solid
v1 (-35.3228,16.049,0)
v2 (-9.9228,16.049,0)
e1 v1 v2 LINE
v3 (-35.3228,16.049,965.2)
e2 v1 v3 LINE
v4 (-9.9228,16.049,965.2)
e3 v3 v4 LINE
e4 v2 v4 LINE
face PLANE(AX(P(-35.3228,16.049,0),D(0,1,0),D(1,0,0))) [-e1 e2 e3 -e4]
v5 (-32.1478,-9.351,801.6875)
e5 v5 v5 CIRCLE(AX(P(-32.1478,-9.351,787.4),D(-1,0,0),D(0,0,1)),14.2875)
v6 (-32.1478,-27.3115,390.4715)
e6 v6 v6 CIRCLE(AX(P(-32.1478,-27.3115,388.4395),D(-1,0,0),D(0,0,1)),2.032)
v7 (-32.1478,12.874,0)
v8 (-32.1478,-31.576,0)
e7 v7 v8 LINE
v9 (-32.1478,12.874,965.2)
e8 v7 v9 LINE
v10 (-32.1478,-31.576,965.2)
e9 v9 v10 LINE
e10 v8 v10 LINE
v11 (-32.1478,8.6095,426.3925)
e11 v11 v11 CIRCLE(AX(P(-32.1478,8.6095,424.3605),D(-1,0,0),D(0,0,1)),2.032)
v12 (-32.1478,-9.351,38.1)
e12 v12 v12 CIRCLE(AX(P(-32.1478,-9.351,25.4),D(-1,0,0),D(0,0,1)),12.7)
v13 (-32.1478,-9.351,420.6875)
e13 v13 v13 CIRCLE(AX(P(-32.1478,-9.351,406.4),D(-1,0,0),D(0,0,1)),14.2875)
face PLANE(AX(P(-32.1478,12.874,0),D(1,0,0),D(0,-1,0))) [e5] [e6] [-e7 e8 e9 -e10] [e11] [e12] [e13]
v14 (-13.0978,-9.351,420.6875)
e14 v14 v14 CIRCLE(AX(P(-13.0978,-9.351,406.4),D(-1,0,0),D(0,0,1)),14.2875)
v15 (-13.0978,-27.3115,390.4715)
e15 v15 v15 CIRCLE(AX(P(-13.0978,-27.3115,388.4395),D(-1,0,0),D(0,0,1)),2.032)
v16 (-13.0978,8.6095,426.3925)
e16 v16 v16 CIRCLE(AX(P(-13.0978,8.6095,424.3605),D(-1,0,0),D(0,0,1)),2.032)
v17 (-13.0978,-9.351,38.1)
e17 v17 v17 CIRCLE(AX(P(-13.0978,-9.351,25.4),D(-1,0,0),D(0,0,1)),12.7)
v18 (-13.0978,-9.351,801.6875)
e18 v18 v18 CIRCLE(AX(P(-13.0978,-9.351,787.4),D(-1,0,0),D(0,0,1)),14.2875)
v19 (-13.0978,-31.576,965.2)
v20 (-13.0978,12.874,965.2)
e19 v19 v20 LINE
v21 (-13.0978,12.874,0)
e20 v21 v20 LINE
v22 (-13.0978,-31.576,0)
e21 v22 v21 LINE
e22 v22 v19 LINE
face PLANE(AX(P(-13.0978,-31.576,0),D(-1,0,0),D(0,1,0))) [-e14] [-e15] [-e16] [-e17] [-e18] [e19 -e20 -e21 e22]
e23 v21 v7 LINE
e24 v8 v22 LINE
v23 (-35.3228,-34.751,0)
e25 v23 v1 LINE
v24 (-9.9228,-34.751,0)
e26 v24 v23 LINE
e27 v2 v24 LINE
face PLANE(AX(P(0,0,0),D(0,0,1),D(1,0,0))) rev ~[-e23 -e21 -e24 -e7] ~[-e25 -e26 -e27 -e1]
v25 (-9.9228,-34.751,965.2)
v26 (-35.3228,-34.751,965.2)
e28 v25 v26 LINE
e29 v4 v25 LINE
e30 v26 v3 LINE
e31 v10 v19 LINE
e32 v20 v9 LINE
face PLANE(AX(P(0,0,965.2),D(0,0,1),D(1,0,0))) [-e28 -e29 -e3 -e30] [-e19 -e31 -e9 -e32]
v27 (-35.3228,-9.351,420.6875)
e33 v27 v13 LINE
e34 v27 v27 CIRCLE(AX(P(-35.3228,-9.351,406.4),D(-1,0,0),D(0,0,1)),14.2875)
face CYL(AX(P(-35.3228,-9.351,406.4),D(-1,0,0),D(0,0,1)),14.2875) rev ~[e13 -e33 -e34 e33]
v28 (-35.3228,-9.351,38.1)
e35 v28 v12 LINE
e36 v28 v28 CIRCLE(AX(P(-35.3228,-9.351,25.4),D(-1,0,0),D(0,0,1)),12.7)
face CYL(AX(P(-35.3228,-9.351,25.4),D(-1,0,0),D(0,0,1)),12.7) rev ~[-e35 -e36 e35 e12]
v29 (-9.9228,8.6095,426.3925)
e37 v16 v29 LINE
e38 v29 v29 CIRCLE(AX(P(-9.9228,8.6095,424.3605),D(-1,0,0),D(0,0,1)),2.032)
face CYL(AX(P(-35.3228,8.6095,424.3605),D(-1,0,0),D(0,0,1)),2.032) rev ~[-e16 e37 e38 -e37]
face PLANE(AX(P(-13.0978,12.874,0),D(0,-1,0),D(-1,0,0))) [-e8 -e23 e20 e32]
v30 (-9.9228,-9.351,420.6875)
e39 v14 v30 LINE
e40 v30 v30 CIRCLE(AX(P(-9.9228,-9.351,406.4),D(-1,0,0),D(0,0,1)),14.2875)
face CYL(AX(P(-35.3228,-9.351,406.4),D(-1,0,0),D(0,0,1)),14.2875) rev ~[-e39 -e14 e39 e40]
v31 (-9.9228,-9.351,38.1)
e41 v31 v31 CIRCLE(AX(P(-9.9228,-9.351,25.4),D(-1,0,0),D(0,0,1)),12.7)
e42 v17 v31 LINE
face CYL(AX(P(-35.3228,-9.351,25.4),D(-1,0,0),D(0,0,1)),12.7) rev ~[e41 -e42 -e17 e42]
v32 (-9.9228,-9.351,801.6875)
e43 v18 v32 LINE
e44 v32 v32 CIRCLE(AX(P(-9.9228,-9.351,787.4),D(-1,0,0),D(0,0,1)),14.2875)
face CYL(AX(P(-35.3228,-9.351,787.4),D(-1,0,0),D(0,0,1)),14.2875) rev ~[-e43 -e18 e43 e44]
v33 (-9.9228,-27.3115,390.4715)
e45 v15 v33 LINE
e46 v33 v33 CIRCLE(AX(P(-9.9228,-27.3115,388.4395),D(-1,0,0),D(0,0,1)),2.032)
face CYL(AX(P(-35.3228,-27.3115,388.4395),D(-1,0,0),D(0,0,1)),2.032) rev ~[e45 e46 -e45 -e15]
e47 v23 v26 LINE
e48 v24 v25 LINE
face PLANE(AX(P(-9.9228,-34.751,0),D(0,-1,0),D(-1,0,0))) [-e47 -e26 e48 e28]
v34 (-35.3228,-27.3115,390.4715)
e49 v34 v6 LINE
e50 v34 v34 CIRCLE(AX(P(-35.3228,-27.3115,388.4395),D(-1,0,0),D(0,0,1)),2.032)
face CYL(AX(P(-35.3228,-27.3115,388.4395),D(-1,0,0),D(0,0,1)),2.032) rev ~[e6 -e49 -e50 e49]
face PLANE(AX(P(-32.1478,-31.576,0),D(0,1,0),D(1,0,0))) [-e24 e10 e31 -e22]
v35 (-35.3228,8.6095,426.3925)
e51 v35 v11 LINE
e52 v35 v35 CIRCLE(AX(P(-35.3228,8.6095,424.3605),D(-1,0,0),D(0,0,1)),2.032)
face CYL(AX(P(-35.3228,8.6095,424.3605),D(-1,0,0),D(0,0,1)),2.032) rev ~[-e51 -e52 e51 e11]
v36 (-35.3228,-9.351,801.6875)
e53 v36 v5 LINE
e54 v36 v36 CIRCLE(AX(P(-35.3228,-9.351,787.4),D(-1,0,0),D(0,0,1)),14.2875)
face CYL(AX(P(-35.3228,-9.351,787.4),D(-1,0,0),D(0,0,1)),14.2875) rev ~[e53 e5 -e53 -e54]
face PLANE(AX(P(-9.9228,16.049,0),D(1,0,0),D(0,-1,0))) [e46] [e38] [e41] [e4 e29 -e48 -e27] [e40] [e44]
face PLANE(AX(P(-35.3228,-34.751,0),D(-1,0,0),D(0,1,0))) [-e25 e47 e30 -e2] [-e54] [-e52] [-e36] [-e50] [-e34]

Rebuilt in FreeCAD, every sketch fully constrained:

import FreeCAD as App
import Part
import Sketcher
Q = App.Units.Quantity

doc = App.newDocument("Part")
body = doc.addObject("PartDesign::Body", "Body")

# Sketch on XY plane
sketch1 = body.newObject("Sketcher::SketchObject", "Sketch")
sketch1.AttachmentSupport = (doc.getObject("XY_Plane"), [""])
sketch1.MapMode = "FlatFace"
sketch1.addGeometry(Part.LineSegment(App.Vector(-10, 16, 0), App.Vector(-35, 16, 0)), False)
sketch1.addGeometry(Part.LineSegment(App.Vector(-35, 16, 0), App.Vector(-35, -35, 0)), False)
sketch1.addGeometry(Part.LineSegment(App.Vector(-35, -35, 0), App.Vector(-10, -35, 0)), False)
sketch1.addGeometry(Part.LineSegment(App.Vector(-10, -35, 0), App.Vector(-10, 16, 0)), False)
sketch1.addGeometry(Part.LineSegment(App.Vector(-32, 13, 0), App.Vector(-13, 13, 0)), False)
sketch1.addGeometry(Part.LineSegment(App.Vector(-13, 13, 0), App.Vector(-13, -32, 0)), False)
sketch1.addGeometry(Part.LineSegment(App.Vector(-13, -32, 0), App.Vector(-32, -32, 0)), False)
sketch1.addGeometry(Part.LineSegment(App.Vector(-32, -32, 0), App.Vector(-32, 13, 0)), False)
sketch1.addConstraint(Sketcher.Constraint("Coincident", 0, 2, 1, 1))
sketch1.addConstraint(Sketcher.Constraint("Coincident", 1, 2, 2, 1))
sketch1.addConstraint(Sketcher.Constraint("Coincident", 2, 2, 3, 1))
sketch1.addConstraint(Sketcher.Constraint("Coincident", 3, 2, 0, 1))
sketch1.addConstraint(Sketcher.Constraint("Coincident", 4, 2, 5, 1))
sketch1.addConstraint(Sketcher.Constraint("Coincident", 5, 2, 6, 1))
sketch1.addConstraint(Sketcher.Constraint("Coincident", 6, 2, 7, 1))
sketch1.addConstraint(Sketcher.Constraint("Coincident", 7, 2, 4, 1))
sketch1.addConstraint(Sketcher.Constraint("Horizontal", 0))
sketch1.addConstraint(Sketcher.Constraint("Vertical", 1))
sketch1.addConstraint(Sketcher.Constraint("Horizontal", 2))
sketch1.addConstraint(Sketcher.Constraint("Vertical", 3))
sketch1.addConstraint(Sketcher.Constraint("Horizontal", 4))
sketch1.addConstraint(Sketcher.Constraint("Vertical", 5))
sketch1.addConstraint(Sketcher.Constraint("Horizontal", 6))
sketch1.addConstraint(Sketcher.Constraint("Vertical", 7))
sketch1.addConstraint(Sketcher.Constraint("DistanceX", 0, 2, 0, 1, Q("1 in")))
sketch1.addConstraint(Sketcher.Constraint("DistanceY", 1, 2, 1, 1, Q("2 in")))
sketch1.addConstraint(Sketcher.Constraint("DistanceX", 4, 2, 3, 2, Q("0.125 in")))
sketch1.addConstraint(Sketcher.Constraint("DistanceY", 4, 2, 3, 2, Q("0.125 in")))
sketch1.addConstraint(Sketcher.Constraint("DistanceY", 2, 2, 5, 2, Q("0.125 in")))
sketch1.addConstraint(Sketcher.Constraint("DistanceX", 1, 2, 6, 2, Q("0.125 in")))
sketch1.addConstraint(Sketcher.Constraint("DistanceX", 0, 2, -1, 1, 35.3228))
sketch1.addConstraint(Sketcher.Constraint("DistanceY", -1, 1, 0, 2, 16.049))
pad1 = body.newObject("PartDesign::Pad", "Pad")
pad1.Profile = sketch1
pad1.Length = Q("38 in")

# Sketch on YZ plane
sketch2 = body.newObject("Sketcher::SketchObject", "Sketch001")
sketch2.AttachmentSupport = (doc.getObject("YZ_Plane"), [""])
sketch2.MapMode = "FlatFace"
sketch2.AttachmentOffset = App.Placement(App.Vector(0, 0, -35.3228), App.Rotation())
sketch2.addGeometry(Part.Circle(App.Vector(-9, 25, 0), App.Vector(0, 0, 1), 13), False)
sketch2.addConstraint(Sketcher.Constraint("Diameter", 0, Q("1 in")))
sketch2.addConstraint(Sketcher.Constraint("DistanceY", -1, 1, 0, 3, Q("1 in")))
sketch2.addConstraint(Sketcher.Constraint("DistanceX", 0, 3, -1, 1, 9.351))
pocket1 = body.newObject("PartDesign::Pocket", "Pocket")
pocket1.Profile = sketch2
pocket1.Length = Q("10 in")
pocket1.Reversed = True

# Sketch on YZ plane
sketch3 = body.newObject("Sketcher::SketchObject", "Sketch002")
sketch3.AttachmentSupport = (doc.getObject("YZ_Plane"), [""])
sketch3.MapMode = "FlatFace"
sketch3.AttachmentOffset = App.Placement(App.Vector(0, 0, -35.3228), App.Rotation())
sketch3.addGeometry(Part.Circle(App.Vector(-9, 787, 0), App.Vector(0, 0, 1), 14), False)
sketch3.addConstraint(Sketcher.Constraint("Diameter", 0, Q("1.125 in")))
sketch3.addConstraint(Sketcher.Constraint("DistanceY", -1, 1, 0, 3, Q("31 in")))
sketch3.addConstraint(Sketcher.Constraint("DistanceX", 0, 3, -1, 1, 9.351))
pocket2 = body.newObject("PartDesign::Pocket", "Pocket001")
pocket2.Profile = sketch3
pocket2.Length = Q("1 in")
pocket2.Reversed = True

# Sketch on YZ plane
sketch4 = body.newObject("Sketcher::SketchObject", "Sketch003")
sketch4.AttachmentSupport = (doc.getObject("YZ_Plane"), [""])
sketch4.MapMode = "FlatFace"
sketch4.AttachmentOffset = App.Placement(App.Vector(0, 0, -35.3228), App.Rotation())
sketch4.addGeometry(Part.Circle(App.Vector(-9, 406, 0), App.Vector(0, 0, 1), 14), False)
sketch4.addConstraint(Sketcher.Constraint("Diameter", 0, Q("1.125 in")))
sketch4.addConstraint(Sketcher.Constraint("DistanceY", -1, 1, 0, 3, Q("16 in")))
sketch4.addConstraint(Sketcher.Constraint("DistanceX", 0, 3, -1, 1, 9.351))
pocket3 = body.newObject("PartDesign::Pocket", "Pocket002")
pocket3.Profile = sketch4
pocket3.Length = Q("1 in")
pocket3.Reversed = True

# Sketch on YZ plane
sketch5 = body.newObject("Sketcher::SketchObject", "Sketch004")
sketch5.AttachmentSupport = (doc.getObject("YZ_Plane"), [""])
sketch5.MapMode = "FlatFace"
sketch5.AttachmentOffset = App.Placement(App.Vector(0, 0, -35.3228), App.Rotation())
sketch5.addGeometry(Part.Circle(App.Vector(-27.3, 388.4, 0), App.Vector(0, 0, 1), 2), False)
sketch5.addGeometry(Part.Circle(App.Vector(8.6, 424.4, 0), App.Vector(0, 0, 1), 2), False)
sketch5.addConstraint(Sketcher.Constraint("Equal", 0, 1))
sketch5.addConstraint(Sketcher.Constraint("Diameter", 0, Q("0.16 in")))
sketch5.addConstraint(Sketcher.Constraint("DistanceY", -1, 1, 0, 3, Q("15.2929 in")))
sketch5.addConstraint(Sketcher.Constraint("DistanceY", -1, 1, 1, 3, Q("16.7071 in")))
sketch5.addConstraint(Sketcher.Constraint("DistanceX", 0, 3, -1, 1, 27.3115))
sketch5.addConstraint(Sketcher.Constraint("DistanceX", -1, 1, 1, 3, 8.6095))
pocket4 = body.newObject("PartDesign::Pocket", "Pocket003")
pocket4.Profile = sketch5
pocket4.Length = Q("1 in")
pocket4.Reversed = True

doc.recompute()
